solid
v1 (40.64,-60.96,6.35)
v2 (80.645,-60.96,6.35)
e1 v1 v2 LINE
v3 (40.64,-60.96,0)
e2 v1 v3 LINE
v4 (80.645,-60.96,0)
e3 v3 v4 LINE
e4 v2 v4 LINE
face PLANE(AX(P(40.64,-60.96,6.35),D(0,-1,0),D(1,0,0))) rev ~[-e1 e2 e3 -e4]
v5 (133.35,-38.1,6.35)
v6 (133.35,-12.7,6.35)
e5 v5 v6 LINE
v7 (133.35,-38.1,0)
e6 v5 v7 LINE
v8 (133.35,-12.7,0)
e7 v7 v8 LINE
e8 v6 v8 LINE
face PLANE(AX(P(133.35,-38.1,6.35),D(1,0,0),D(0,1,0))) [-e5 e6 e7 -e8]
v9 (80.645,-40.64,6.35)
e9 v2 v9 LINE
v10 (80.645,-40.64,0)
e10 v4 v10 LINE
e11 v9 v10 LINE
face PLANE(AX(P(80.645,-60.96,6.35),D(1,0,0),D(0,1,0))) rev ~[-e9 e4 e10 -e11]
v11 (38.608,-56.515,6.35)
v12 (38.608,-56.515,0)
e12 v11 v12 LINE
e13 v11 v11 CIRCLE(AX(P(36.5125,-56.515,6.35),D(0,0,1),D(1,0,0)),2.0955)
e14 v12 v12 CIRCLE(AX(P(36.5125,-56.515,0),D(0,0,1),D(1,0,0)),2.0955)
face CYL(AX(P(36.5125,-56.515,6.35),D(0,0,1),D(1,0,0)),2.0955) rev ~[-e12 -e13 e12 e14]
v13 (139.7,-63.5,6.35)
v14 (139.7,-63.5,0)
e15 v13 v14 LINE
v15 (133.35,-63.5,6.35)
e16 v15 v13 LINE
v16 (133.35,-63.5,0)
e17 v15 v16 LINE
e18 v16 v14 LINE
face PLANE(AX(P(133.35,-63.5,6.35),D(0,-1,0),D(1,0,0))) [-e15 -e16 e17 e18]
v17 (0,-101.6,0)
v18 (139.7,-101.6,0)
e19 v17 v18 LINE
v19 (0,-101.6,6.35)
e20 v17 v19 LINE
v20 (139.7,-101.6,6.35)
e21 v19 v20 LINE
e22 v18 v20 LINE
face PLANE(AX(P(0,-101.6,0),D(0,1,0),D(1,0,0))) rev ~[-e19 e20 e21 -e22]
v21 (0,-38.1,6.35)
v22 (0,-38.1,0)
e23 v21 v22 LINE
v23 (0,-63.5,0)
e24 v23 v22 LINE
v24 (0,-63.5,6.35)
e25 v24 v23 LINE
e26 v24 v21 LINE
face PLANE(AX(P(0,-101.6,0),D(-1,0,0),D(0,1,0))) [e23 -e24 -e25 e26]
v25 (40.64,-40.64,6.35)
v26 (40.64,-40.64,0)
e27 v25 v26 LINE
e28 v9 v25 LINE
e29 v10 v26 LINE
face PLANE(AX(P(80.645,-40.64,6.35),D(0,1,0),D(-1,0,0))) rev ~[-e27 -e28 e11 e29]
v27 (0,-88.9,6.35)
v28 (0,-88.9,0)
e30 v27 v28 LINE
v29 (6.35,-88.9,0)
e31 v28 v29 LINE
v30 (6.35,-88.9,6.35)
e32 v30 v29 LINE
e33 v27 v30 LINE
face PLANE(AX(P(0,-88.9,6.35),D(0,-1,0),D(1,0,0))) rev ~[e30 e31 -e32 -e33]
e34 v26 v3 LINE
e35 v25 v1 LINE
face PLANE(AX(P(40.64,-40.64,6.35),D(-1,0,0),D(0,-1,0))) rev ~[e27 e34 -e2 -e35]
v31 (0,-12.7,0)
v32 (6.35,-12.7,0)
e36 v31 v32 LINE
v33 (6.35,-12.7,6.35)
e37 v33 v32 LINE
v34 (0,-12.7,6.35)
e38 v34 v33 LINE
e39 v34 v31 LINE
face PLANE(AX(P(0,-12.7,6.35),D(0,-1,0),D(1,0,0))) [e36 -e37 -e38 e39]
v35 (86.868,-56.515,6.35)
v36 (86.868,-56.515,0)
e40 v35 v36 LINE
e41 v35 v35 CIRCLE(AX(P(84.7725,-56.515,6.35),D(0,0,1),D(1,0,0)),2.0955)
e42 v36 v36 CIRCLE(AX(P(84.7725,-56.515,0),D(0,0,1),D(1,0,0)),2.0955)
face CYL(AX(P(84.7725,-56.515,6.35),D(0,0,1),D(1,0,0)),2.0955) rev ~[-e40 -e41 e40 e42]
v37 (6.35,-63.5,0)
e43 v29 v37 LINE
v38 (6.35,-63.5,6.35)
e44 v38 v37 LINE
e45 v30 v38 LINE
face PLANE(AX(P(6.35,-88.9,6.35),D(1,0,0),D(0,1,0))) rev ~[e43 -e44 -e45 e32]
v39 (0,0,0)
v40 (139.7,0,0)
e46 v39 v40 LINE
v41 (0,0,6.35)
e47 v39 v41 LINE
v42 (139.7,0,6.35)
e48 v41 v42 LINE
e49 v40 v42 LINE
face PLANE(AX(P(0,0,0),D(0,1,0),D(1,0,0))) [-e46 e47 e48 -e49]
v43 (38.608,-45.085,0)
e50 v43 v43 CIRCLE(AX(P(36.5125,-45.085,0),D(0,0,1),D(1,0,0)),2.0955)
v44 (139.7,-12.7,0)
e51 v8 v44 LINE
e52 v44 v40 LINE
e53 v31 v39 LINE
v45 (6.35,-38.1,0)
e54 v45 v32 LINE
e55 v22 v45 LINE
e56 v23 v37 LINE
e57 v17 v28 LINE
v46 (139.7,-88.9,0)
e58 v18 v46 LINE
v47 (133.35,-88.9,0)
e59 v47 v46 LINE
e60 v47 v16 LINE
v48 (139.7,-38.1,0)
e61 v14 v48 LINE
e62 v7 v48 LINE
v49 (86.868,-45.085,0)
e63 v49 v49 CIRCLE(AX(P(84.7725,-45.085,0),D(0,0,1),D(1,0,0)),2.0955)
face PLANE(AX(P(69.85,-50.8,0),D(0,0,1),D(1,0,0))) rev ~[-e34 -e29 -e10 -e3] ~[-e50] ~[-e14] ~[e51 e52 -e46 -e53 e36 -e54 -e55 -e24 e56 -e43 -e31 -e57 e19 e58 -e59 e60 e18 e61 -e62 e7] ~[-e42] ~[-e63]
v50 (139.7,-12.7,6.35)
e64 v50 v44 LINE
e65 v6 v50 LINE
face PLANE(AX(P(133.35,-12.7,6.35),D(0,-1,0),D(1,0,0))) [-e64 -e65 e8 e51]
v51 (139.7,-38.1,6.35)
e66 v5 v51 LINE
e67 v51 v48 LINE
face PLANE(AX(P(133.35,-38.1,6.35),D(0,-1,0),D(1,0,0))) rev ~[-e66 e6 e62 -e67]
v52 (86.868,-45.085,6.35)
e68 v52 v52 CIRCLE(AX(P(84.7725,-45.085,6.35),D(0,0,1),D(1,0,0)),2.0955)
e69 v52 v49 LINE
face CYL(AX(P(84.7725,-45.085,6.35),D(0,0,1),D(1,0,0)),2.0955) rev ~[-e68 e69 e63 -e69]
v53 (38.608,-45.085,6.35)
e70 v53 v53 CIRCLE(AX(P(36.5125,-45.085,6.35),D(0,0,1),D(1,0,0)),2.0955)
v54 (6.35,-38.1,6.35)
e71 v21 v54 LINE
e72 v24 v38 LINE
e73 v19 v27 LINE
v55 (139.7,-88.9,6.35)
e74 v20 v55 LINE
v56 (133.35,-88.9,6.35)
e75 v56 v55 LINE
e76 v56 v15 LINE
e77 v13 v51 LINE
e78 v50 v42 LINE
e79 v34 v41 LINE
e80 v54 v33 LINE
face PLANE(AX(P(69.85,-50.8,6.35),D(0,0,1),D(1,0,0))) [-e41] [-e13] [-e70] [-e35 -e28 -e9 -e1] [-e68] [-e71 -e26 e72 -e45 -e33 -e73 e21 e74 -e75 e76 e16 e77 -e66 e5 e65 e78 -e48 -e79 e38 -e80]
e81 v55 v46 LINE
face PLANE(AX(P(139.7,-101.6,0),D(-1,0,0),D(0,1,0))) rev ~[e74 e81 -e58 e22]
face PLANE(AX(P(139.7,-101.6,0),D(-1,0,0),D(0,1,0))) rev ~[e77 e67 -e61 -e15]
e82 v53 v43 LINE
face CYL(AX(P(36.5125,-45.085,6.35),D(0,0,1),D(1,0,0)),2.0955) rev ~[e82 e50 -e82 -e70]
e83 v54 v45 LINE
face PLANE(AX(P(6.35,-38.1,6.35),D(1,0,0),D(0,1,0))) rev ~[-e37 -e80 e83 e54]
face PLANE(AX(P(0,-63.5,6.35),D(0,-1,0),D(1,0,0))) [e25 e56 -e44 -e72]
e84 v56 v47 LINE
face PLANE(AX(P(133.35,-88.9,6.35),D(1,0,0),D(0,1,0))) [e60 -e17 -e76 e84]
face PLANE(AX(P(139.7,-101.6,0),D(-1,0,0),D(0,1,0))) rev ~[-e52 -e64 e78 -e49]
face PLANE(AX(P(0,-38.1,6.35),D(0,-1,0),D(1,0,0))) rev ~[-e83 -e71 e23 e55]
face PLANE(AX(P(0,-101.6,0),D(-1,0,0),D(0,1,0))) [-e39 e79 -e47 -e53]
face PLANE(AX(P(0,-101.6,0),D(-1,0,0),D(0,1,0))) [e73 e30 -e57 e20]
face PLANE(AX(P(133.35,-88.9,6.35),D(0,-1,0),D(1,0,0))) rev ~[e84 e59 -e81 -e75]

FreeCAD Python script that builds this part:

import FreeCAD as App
import Part
import Sketcher
Q = App.Units.Quantity

doc = App.newDocument("Part")
params = doc.addObject("Spreadsheet::Sheet", "Params")
for row, (alias, value) in enumerate([
    ("sketch1_height", "4 in"),
    ("sketch1_width", "5.5 in"),
    ("pad1_length", "0.25 in"),
    ("sketch2_height", "0.8 in"),
    ("sketch2_width", "1.575 in"),
    ("pocket1_length", "1 in"),
    ("sketch3_diameter", "0.165 in"),
    ("pocket2_length", "1 in"),
    ("sketch4_height", "1 in"),
    ("sketch4_width", "0.25 in"),
    ("pocket3_length", "1 in"),
], start=1):
    params.set(f"A{row}", alias)
    params.set(f"B{row}", "=" + value)
    params.setAlias(f"B{row}", alias)

body = doc.addObject("PartDesign::Body", "Body")

sketch1 = body.newObject("Sketcher::SketchObject", "Sketch")
sketch1.AttachmentSupport = (doc.getObject("XY_Plane"), [""])
sketch1.MapMode = "FlatFace"
sketch1.addGeometry([
    Part.LineSegment(App.Vector(0, 0, 0), App.Vector(0, -102, 0)),
    Part.LineSegment(App.Vector(0, -102, 0), App.Vector(140, -102, 0)),
    Part.LineSegment(App.Vector(140, -102, 0), App.Vector(140, 0, 0)),
    Part.LineSegment(App.Vector(140, 0, 0), App.Vector(0, 0, 0)),
], False)
sketch1.addConstraint([
    Sketcher.Constraint("Coincident", 0, 2, 1, 1),
    Sketcher.Constraint("Coincident", 1, 2, 2, 1),
    Sketcher.Constraint("Coincident", 2, 2, 3, 1),
    Sketcher.Constraint("Coincident", 3, 2, 0, 1),
    Sketcher.Constraint("Vertical", 0),
    Sketcher.Constraint("Horizontal", 1),
    Sketcher.Constraint("Vertical", 2),
    Sketcher.Constraint("Horizontal", 3),
    Sketcher.Constraint("Coincident", 3, 2, -1, 1),
    Sketcher.Constraint("DistanceY", 0, 2, 0, 1, Q("4 in")),
    Sketcher.Constraint("DistanceX", 1, 1, 1, 2, Q("5.5 in")),
])
sketch1.setExpression("Constraints[9]", "Params.sketch1_height")
sketch1.setExpression("Constraints[10]", "Params.sketch1_width")
pad1 = body.newObject("PartDesign::Pad", "Pad")
pad1.Profile = sketch1
pad1.setExpression("Length", "Params.pad1_length")

sketch2 = body.newObject("Sketcher::SketchObject", "Sketch001")
sketch2.AttachmentSupport = (doc.getObject("XY_Plane"), [""])
sketch2.MapMode = "FlatFace"
sketch2.AttachmentOffset = App.Placement(App.Vector(0, 0, 0.25 * 25.4), App.Rotation())
sketch2.addGeometry([
    Part.LineSegment(App.Vector(41, -41, 0), App.Vector(41, -61, 0)),
    Part.LineSegment(App.Vector(41, -61, 0), App.Vector(81, -61, 0)),
    Part.LineSegment(App.Vector(81, -61, 0), App.Vector(81, -41, 0)),
    Part.LineSegment(App.Vector(81, -41, 0), App.Vector(41, -41, 0)),
], False)
sketch2.addConstraint([
    Sketcher.Constraint("Coincident", 0, 2, 1, 1),
    Sketcher.Constraint("Coincident", 1, 2, 2, 1),
    Sketcher.Constraint("Coincident", 2, 2, 3, 1),
    Sketcher.Constraint("Coincident", 3, 2, 0, 1),
    Sketcher.Constraint("Vertical", 0),
    Sketcher.Constraint("Horizontal", 1),
    Sketcher.Constraint("Vertical", 2),
    Sketcher.Constraint("Horizontal", 3),
    Sketcher.Constraint("DistanceY", 0, 2, 0, 1, Q("0.8 in")),
    Sketcher.Constraint("DistanceX", -1, 1, 0, 2, Q("1.6 in")),
    Sketcher.Constraint("DistanceY", 0, 2, -1, 1, Q("2.4 in")),
    Sketcher.Constraint("DistanceX", 1, 1, 1, 2, Q("1.575 in")),
])
sketch2.setExpression("Constraints[8]", "Params.sketch2_height")
sketch2.setExpression("Constraints[11]", "Params.sketch2_width")
pocket1 = body.newObject("PartDesign::Pocket", "Pocket")
pocket1.Profile = sketch2
pocket1.setExpression("Length", "Params.pocket1_length")

sketch3 = body.newObject("Sketcher::SketchObject", "Sketch002")
sketch3.AttachmentSupport = (doc.getObject("XY_Plane"), [""])
sketch3.MapMode = "FlatFace"
sketch3.AttachmentOffset = App.Placement(App.Vector(0, 0, 0.25 * 25.4), App.Rotation())
sketch3.addGeometry([
    Part.Circle(App.Vector(84.8, -45.1, 0), App.Vector(0, 0, 1), 2.1),
    Part.Circle(App.Vector(84.8, -56.5, 0), App.Vector(0, 0, 1), 2.1),
    Part.Circle(App.Vector(36.5, -45.1, 0), App.Vector(0, 0, 1), 2.1),
    Part.Circle(App.Vector(36.5, -56.5, 0), App.Vector(0, 0, 1), 2.1),
], False)
sketch3.addConstraint([
    Sketcher.Constraint("Equal", 0, 1),
    Sketcher.Constraint("Equal", 1, 2),
    Sketcher.Constraint("Equal", 2, 3),
    Sketcher.Constraint("Horizontal", 0, 3, 2, 3),
    Sketcher.Constraint("Horizontal", 1, 3, 3, 3),
    Sketcher.Constraint("Vertical", 0, 3, 1, 3),
    Sketcher.Constraint("Vertical", 2, 3, 3, 3),
    Sketcher.Constraint("Diameter", 0, Q("0.165 in")),
    Sketcher.Constraint("DistanceX", 2, 3, 0, 3, Q("1.9 in")),
    Sketcher.Constraint("DistanceY", 1, 3, 0, 3, Q("0.45 in")),
    Sketcher.Constraint("DistanceY", 0, 3, -1, 1, Q("1.775 in")),
    Sketcher.Constraint("DistanceX", -1, 1, 2, 3, Q("1.4375 in")),
])
sketch3.setExpression("Constraints[7]", "Params.sketch3_diameter")
pocket2 = body.newObject("PartDesign::Pocket", "Pocket001")
pocket2.Profile = sketch3
pocket2.setExpression("Length", "Params.pocket2_length")

sketch4 = body.newObject("Sketcher::SketchObject", "Sketch003")
sketch4.AttachmentSupport = (doc.getObject("XY_Plane"), [""])
sketch4.MapMode = "FlatFace"
sketch4.AttachmentOffset = App.Placement(App.Vector(0, 0, 0.25 * 25.4), App.Rotation())
sketch4.addGeometry([
    Part.LineSegment(App.Vector(0, -13, 0), App.Vector(0, -38, 0)),
    Part.LineSegment(App.Vector(0, -38, 0), App.Vector(6, -38, 0)),
    Part.LineSegment(App.Vector(6, -38, 0), App.Vector(6, -13, 0)),
    Part.LineSegment(App.Vector(6, -13, 0), App.Vector(0, -13, 0)),
    Part.LineSegment(App.Vector(0, -64, 0), App.Vector(0, -89, 0)),
    Part.LineSegment(App.Vector(0, -89, 0), App.Vector(6, -89, 0)),
    Part.LineSegment(App.Vector(6, -89, 0), App.Vector(6, -64, 0)),
    Part.LineSegment(App.Vector(6, -64, 0), App.Vector(0, -64, 0)),
    Part.LineSegment(App.Vector(133, -13, 0), App.Vector(133, -38, 0)),
    Part.LineSegment(App.Vector(133, -38, 0), App.Vector(140, -38, 0)),
    Part.LineSegment(App.Vector(140, -38, 0), App.Vector(140, -13, 0)),
    Part.LineSegment(App.Vector(140, -13, 0), App.Vector(133, -13, 0)),
    Part.LineSegment(App.Vector(133, -64, 0), App.Vector(133, -89, 0)),
    Part.LineSegment(App.Vector(133, -89, 0), App.Vector(140, -89, 0)),
    Part.LineSegment(App.Vector(140, -89, 0), App.Vector(140, -64, 0)),
    Part.LineSegment(App.Vector(140, -64, 0), App.Vector(133, -64, 0)),
], False)
sketch4.addConstraint([
    Sketcher.Constraint("Coincident", 0, 2, 1, 1),
    Sketcher.Constraint("Coincident", 1, 2, 2, 1),
    Sketcher.Constraint("Coincident", 2, 2, 3, 1),
    Sketcher.Constraint("Coincident", 3, 2, 0, 1),
    Sketcher.Constraint("Coincident", 4, 2, 5, 1),
    Sketcher.Constraint("Coincident", 5, 2, 6, 1),
    Sketcher.Constraint("Coincident", 6, 2, 7, 1),
    Sketcher.Constraint("Coincident", 7, 2, 4, 1),
    Sketcher.Constraint("Coincident", 8, 2, 9, 1),
    Sketcher.Constraint("Coincident", 9, 2, 10, 1),
    Sketcher.Constraint("Coincident", 10, 2, 11, 1),
    Sketcher.Constraint("Coincident", 11, 2, 8, 1),
    Sketcher.Constraint("Coincident", 12, 2, 13, 1),
    Sketcher.Constraint("Coincident", 13, 2, 14, 1),
    Sketcher.Constraint("Coincident", 14, 2, 15, 1),
    Sketcher.Constraint("Coincident", 15, 2, 12, 1),
    Sketcher.Constraint("Vertical", 0),
    Sketcher.Constraint("Horizontal", 1),
    Sketcher.Constraint("Vertical", 2),
    Sketcher.Constraint("Horizontal", 3),
    Sketcher.Constraint("Vertical", 4),
    Sketcher.Constraint("Horizontal", 5),
    Sketcher.Constraint("Vertical", 6),
    Sketcher.Constraint("Horizontal", 7),
    Sketcher.Constraint("Vertical", 8),
    Sketcher.Constraint("Horizontal", 9),
    Sketcher.Constraint("Vertical", 10),
    Sketcher.Constraint("Horizontal", 11),
    Sketcher.Constraint("Vertical", 12),
    Sketcher.Constraint("Horizontal", 13),
    Sketcher.Constraint("Vertical", 14),
    Sketcher.Constraint("Horizontal", 15),
    Sketcher.Constraint("PointOnObject", 0, 2, -2),
    Sketcher.Constraint("PointOnObject", 4, 2, -2),
    Sketcher.Constraint("Horizontal", 1, 2, 8, 2),
    Sketcher.Constraint("Horizontal", 3, 2, 10, 2),
    Sketcher.Constraint("Horizontal", 5, 2, 12, 2),
    Sketcher.Constraint("Horizontal", 7, 2, 14, 2),
    Sketcher.Constraint("Vertical", 2, 2, 5, 2),
    Sketcher.Constraint("Vertical", 11, 2, 12, 2),
    Sketcher.Constraint("Vertical", 10, 2, 13, 2),
    Sketcher.Constraint("Equal", 7, 9),
    Sketcher.Constraint("Equal", 2, 4),
    Sketcher.Constraint("DistanceY", 0, 2, 0, 1, Q("1 in")),
    Sketcher.Constraint("DistanceY", 4, 2, 0, 2, Q("2 in")),
    Sketcher.Constraint("DistanceX", 1, 2, 8, 2, Q("5 in")),
    Sketcher.Constraint("DistanceX", 1, 1, 1, 2, Q("0.25 in")),
    Sketcher.Constraint("DistanceY", 0, 2, -1, 1, Q("1.5 in")),
])
sketch4.setExpression("Constraints[43]", "Params.sketch4_height")
sketch4.setExpression("Constraints[46]", "Params.sketch4_width")
pocket3 = body.newObject("PartDesign::Pocket", "Pocket002")
pocket3.Profile = sketch4
pocket3.setExpression("Length", "Params.pocket3_length")

doc.recompute()
